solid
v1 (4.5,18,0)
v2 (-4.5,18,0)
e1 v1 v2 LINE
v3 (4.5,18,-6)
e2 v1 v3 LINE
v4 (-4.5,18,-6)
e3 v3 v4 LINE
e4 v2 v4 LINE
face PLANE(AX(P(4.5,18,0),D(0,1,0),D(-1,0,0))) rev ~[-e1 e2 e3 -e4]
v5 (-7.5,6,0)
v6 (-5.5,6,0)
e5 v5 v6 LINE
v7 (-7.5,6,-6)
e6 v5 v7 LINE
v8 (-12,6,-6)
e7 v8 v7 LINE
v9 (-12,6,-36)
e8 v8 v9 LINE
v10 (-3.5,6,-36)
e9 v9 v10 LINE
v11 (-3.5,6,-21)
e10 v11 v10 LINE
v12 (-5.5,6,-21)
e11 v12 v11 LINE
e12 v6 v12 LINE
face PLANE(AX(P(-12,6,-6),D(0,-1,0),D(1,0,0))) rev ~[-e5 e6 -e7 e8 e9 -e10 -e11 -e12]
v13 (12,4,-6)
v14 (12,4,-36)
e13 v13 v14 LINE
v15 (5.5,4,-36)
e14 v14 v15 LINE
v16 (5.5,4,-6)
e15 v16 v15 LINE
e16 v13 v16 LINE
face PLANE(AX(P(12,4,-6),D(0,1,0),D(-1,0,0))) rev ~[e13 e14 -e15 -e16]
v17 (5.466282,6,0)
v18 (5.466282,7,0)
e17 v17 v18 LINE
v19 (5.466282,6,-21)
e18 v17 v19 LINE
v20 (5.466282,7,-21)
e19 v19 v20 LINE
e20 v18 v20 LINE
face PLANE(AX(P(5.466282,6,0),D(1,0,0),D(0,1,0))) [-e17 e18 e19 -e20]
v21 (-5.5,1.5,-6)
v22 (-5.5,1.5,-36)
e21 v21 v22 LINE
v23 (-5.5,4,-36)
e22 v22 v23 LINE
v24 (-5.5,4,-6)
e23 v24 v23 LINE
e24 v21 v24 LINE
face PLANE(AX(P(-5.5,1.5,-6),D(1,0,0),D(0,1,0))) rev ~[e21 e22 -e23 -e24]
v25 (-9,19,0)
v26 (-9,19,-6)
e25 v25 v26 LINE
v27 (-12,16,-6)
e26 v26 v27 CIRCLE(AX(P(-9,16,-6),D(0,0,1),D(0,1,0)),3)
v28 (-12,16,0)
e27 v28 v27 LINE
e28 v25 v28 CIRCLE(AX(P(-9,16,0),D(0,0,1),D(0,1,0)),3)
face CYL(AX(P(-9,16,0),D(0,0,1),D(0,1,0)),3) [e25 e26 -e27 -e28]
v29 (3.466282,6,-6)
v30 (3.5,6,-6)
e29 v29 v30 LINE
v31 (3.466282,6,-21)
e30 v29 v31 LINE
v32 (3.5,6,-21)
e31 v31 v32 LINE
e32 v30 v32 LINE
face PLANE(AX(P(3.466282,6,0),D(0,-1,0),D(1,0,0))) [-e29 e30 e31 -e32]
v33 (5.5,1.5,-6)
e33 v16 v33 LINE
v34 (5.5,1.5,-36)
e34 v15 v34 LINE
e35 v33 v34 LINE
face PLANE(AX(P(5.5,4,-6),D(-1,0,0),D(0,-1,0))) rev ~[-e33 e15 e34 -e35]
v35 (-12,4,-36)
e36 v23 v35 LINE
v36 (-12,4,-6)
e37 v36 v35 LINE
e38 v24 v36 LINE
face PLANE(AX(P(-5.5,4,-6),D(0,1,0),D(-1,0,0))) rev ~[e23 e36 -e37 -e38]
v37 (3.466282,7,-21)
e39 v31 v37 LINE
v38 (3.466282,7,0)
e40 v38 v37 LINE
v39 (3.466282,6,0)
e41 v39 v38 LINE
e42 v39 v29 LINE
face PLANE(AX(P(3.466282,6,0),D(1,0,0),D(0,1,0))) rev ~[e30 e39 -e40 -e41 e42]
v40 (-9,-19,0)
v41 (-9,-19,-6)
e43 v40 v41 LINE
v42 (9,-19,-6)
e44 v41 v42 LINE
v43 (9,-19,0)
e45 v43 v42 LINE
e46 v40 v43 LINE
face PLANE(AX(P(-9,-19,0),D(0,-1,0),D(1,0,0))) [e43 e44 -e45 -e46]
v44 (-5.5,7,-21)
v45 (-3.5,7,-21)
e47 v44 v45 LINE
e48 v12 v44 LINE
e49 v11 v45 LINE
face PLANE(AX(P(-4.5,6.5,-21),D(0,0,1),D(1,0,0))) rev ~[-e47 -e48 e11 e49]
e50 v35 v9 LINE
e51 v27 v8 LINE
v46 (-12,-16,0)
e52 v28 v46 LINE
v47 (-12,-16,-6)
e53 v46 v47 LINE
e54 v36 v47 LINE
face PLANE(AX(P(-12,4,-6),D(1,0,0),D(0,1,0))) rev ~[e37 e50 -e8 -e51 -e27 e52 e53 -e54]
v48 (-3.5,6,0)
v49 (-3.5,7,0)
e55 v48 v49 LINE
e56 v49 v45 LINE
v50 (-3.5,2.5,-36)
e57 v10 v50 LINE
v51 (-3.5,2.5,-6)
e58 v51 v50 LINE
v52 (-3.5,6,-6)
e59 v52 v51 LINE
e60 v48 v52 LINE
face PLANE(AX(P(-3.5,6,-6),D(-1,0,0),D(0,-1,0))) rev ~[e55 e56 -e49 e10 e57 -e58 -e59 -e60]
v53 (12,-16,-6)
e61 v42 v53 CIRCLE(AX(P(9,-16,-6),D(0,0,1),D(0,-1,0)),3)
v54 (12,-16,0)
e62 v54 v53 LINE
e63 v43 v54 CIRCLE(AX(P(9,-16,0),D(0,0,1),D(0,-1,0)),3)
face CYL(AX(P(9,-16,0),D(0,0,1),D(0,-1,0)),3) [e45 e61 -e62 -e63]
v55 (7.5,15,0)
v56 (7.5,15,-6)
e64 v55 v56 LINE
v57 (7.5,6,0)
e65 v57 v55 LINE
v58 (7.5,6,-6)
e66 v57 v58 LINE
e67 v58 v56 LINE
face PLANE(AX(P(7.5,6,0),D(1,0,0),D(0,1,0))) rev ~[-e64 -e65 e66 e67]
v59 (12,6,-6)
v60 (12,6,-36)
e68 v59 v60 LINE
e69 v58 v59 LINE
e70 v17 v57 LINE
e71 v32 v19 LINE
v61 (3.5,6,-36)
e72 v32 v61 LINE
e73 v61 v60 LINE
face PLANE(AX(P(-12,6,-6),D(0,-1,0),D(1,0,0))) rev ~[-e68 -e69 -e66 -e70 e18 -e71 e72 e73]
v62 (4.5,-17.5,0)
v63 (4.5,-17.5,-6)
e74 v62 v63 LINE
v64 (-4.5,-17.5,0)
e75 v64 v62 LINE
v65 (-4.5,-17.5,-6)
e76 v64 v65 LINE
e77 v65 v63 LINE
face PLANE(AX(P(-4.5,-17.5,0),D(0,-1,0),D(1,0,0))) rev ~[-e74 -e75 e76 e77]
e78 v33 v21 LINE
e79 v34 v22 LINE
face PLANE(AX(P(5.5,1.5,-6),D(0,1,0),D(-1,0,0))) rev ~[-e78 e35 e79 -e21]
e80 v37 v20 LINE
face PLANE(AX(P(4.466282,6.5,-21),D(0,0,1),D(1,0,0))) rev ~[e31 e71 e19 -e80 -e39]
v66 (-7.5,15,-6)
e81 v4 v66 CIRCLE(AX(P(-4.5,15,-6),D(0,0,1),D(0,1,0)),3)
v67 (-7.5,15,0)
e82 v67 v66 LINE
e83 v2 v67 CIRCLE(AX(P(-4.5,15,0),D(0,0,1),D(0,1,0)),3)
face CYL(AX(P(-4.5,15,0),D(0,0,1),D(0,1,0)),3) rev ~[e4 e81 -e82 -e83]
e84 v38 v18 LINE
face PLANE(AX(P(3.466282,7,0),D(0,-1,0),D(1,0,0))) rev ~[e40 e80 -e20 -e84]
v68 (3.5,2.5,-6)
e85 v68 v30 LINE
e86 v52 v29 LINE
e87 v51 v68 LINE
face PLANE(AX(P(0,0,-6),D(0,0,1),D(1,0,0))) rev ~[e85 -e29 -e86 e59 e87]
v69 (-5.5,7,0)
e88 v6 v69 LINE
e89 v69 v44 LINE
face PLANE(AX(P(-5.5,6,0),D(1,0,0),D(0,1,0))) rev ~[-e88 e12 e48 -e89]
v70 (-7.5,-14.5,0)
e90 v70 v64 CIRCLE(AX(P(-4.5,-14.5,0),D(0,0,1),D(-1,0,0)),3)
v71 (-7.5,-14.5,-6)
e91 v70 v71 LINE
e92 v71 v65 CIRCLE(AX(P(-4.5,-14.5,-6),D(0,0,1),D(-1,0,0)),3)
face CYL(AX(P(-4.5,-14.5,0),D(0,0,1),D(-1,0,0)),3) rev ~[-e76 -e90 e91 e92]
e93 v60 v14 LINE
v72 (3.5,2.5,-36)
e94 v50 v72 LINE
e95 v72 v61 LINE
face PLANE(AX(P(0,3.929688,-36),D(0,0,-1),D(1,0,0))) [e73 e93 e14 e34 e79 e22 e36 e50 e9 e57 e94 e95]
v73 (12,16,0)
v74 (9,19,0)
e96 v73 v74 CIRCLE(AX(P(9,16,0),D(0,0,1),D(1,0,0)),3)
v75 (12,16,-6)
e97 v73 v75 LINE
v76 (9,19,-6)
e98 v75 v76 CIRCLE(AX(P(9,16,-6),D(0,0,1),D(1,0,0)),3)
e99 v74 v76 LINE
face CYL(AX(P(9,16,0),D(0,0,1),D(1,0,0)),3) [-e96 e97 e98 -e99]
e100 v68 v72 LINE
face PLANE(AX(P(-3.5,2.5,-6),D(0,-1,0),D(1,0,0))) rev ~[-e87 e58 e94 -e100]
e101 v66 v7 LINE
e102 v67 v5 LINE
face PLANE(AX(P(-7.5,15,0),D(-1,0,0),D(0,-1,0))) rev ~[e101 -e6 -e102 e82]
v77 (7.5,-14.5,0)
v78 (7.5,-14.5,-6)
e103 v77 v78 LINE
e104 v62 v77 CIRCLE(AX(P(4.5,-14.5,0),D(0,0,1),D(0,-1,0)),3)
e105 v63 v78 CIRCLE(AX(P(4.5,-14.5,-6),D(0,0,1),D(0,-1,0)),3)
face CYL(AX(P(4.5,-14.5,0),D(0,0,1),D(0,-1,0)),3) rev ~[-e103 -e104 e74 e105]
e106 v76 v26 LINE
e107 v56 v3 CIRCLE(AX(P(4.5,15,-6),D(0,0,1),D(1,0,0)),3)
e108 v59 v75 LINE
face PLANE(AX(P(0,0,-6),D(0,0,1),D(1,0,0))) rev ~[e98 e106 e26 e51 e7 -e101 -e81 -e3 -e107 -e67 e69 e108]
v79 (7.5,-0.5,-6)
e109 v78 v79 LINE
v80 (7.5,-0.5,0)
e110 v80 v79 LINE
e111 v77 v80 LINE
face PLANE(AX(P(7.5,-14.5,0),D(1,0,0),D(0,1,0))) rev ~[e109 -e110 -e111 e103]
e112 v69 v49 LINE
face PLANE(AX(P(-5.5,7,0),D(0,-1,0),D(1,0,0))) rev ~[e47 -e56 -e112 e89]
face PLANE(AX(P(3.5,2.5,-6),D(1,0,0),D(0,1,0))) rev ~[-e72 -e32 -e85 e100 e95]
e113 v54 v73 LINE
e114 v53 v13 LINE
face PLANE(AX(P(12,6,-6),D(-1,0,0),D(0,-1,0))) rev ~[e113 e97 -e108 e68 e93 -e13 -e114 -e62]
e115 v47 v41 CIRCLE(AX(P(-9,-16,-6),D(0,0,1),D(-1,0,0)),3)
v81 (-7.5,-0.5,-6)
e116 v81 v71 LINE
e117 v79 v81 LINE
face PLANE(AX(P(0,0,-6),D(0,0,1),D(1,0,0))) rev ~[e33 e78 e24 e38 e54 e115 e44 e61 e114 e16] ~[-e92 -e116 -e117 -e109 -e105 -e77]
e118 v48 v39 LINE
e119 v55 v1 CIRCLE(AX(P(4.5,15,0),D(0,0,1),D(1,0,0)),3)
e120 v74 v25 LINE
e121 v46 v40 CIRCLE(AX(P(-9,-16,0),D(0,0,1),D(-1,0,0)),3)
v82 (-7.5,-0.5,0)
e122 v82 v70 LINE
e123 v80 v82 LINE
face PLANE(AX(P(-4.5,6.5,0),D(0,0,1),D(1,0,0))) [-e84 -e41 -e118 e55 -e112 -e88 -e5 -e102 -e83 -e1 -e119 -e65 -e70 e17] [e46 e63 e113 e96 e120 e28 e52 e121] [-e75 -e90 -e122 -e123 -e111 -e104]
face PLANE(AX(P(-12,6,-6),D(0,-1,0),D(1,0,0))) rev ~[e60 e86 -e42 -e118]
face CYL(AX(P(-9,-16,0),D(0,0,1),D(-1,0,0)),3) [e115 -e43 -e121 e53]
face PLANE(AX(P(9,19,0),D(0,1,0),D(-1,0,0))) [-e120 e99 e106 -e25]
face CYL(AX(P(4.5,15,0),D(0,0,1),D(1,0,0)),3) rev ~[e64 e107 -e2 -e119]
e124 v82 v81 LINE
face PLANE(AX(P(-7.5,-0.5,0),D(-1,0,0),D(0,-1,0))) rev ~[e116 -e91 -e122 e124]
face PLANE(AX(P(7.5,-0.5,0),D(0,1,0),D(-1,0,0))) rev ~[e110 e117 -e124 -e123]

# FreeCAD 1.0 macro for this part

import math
import FreeCAD as App
import Part
import Sketcher
from FreeCAD import Vector

doc = App.newDocument("Part")
params = doc.addObject("Spreadsheet::Sheet", "Params")
for row, (alias, value) in enumerate([
    ("sketch1_radius", "3 mm"),
    ("sketch1_width", "18 mm"),
    ("sketch1_height", "32 mm"),
    ("pad1_length", "6 mm"),
    ("sketch2_radius", "3 mm"),
    ("sketch2_width", "9 mm"),
    ("sketch2_height", "14 mm"),
    ("sketch3_width", "7 mm"),
    ("sketch3_width2", "11 mm"),
    ("sketch3_height", "2 mm"),
    ("sketch3_width3", "8.5 mm"),
    ("sketch3_height2", "3.5 mm"),
    ("pad2_length", "30 mm"),
    ("sketch4_width", "2 mm"),
    ("sketch4_height", "1 mm"),
    ("pad3_length", "21 mm"),
], start=1):
    params.set(f"A{row}", alias)
    params.set(f"B{row}", "=" + value)
    params.setAlias(f"B{row}", alias)

body = doc.addObject("PartDesign::Body", "Body")

sketch1 = body.newObject("Sketcher::SketchObject", "Sketch")
sketch1.AttachmentSupport = (doc.getObject("XY_Plane"), [""])
sketch1.MapMode = "FlatFace"
sketch1.addGeometry([
    Part.ArcOfCircle(Part.Circle(Vector(9, 16, 0), Vector(0, 0, 1), 3), math.radians(0), math.radians(90)),
    Part.LineSegment(Vector(9, 19, 0), Vector(-9, 19, 0)),
    Part.ArcOfCircle(Part.Circle(Vector(-9, 16, 0), Vector(0, 0, 1), 3), math.radians(90), math.radians(180)),
    Part.LineSegment(Vector(-12, 16, 0), Vector(-12, -16, 0)),
    Part.ArcOfCircle(Part.Circle(Vector(-9, -16, 0), Vector(0, 0, 1), 3), math.radians(180), math.radians(270)),
    Part.LineSegment(Vector(-9, -19, 0), Vector(9, -19, 0)),
    Part.ArcOfCircle(Part.Circle(Vector(9, -16, 0), Vector(0, 0, 1), 3), math.radians(-90), math.radians(0)),
    Part.LineSegment(Vector(12, -16, 0), Vector(12, 16, 0)),
], False)
sketch1.addConstraint([
    Sketcher.Constraint("Tangent", 0, 2, 1, 1),
    Sketcher.Constraint("Tangent", 1, 2, 2, 1),
    Sketcher.Constraint("Tangent", 2, 2, 3, 1),
    Sketcher.Constraint("Tangent", 3, 2, 4, 1),
    Sketcher.Constraint("Tangent", 4, 2, 5, 1),
    Sketcher.Constraint("Tangent", 5, 2, 6, 1),
    Sketcher.Constraint("Tangent", 6, 2, 7, 1),
    Sketcher.Constraint("Tangent", 7, 2, 0, 1),
    Sketcher.Constraint("Horizontal", 1),
    Sketcher.Constraint("Vertical", 3),
    Sketcher.Constraint("Horizontal", 5),
    Sketcher.Constraint("Vertical", 7),
    Sketcher.Constraint("Equal", 0, 2),
    Sketcher.Constraint("Equal", 2, 4),
    Sketcher.Constraint("Equal", 4, 6),
    Sketcher.Constraint("Symmetric", 0, 3, 4, 3, -1, 1),
    Sketcher.Constraint("Radius", 0, 3.0),
    Sketcher.Constraint("DistanceX", 1, 2, 1, 1, 18.0),
    Sketcher.Constraint("DistanceY", 3, 2, 3, 1, 32.0),
])
sketch1.setExpression("Constraints[16]", "Params.sketch1_radius")
sketch1.setExpression("Constraints[17]", "Params.sketch1_width")
sketch1.setExpression("Constraints[18]", "Params.sketch1_height")
pad1 = body.newObject("PartDesign::Pad", "Pad")
pad1.Profile = sketch1
pad1.setExpression("Length", "Params.pad1_length")
pad1.Reversed = True

sketch2 = body.newObject("Sketcher::SketchObject", "Sketch001")
sketch2.AttachmentSupport = (doc.getObject("XY_Plane"), [""])
sketch2.MapMode = "FlatFace"
sketch2.addGeometry([
    Part.ArcOfCircle(Part.Circle(Vector(4.5, 15, 0), Vector(0, 0, 1), 3), math.radians(0), math.radians(90)),
    Part.LineSegment(Vector(4.5, 18, 0), Vector(-4.5, 18, 0)),
    Part.ArcOfCircle(Part.Circle(Vector(-4.5, 15, 0), Vector(0, 0, 1), 3), math.radians(90), math.radians(180)),
    Part.LineSegment(Vector(-7.5, 15, 0), Vector(-7.5, 6, 0)),
    Part.LineSegment(Vector(-7.5, 6, 0), Vector(7.5, 6, 0)),
    Part.LineSegment(Vector(7.5, 6, 0), Vector(7.5, 15, 0)),
    Part.LineSegment(Vector(7.5, -14.5, 0), Vector(7.5, -0.5, 0)),
    Part.LineSegment(Vector(7.5, -0.5, 0), Vector(-7.5, -0.5, 0)),
    Part.LineSegment(Vector(-7.5, -0.5, 0), Vector(-7.5, -14.5, 0)),
    Part.ArcOfCircle(Part.Circle(Vector(-4.5, -14.5, 0), Vector(0, 0, 1), 3), math.radians(180), math.radians(270)),
    Part.LineSegment(Vector(-4.5, -17.5, 0), Vector(4.5, -17.5, 0)),
    Part.ArcOfCircle(Part.Circle(Vector(4.5, -14.5, 0), Vector(0, 0, 1), 3), math.radians(-90), math.radians(0)),
], False)
sketch2.addConstraint([
    Sketcher.Constraint("Tangent", 0, 2, 1, 1),
    Sketcher.Constraint("Tangent", 1, 2, 2, 1),
    Sketcher.Constraint("Tangent", 2, 2, 3, 1),
    Sketcher.Constraint("Coincident", 3, 2, 4, 1),
    Sketcher.Constraint("Coincident", 4, 2, 5, 1),
    Sketcher.Constraint("Tangent", 5, 2, 0, 1),
    Sketcher.Constraint("Coincident", 6, 2, 7, 1),
    Sketcher.Constraint("Coincident", 7, 2, 8, 1),
    Sketcher.Constraint("Tangent", 8, 2, 9, 1),
    Sketcher.Constraint("Tangent", 9, 2, 10, 1),
    Sketcher.Constraint("Tangent", 10, 2, 11, 1),
    Sketcher.Constraint("Tangent", 11, 2, 6, 1),
    Sketcher.Constraint("Horizontal", 1),
    Sketcher.Constraint("Vertical", 3),
    Sketcher.Constraint("Horizontal", 4),
    Sketcher.Constraint("Vertical", 5),
    Sketcher.Constraint("Vertical", 6),
    Sketcher.Constraint("Horizontal", 7),
    Sketcher.Constraint("Vertical", 8),
    Sketcher.Constraint("Horizontal", 10),
    Sketcher.Constraint("Equal", 0, 2),
    Sketcher.Constraint("Equal", 2, 9),
    Sketcher.Constraint("Equal", 9, 11),
    Sketcher.Constraint("Vertical", 2, 3, 9, 3),
    Sketcher.Constraint("Vertical", 0, 3, 11, 3),
    Sketcher.Constraint("Equal", 10, 3),
    Sketcher.Constraint("Radius", 0, 3.0),
    Sketcher.Constraint("DistanceX", 1, 2, 1, 1, 9.0),
    Sketcher.Constraint("DistanceY", 6, 1, 6, 2, 14.0),
    Sketcher.Constraint("DistanceY", -1, 1, 0, 3, 15.0),
    Sketcher.Constraint("DistanceX", -1, 1, 0, 3, 4.5),
    Sketcher.Constraint("DistanceY", 9, 3, -1, 1, 14.5),
])
sketch2.setExpression("Constraints[26]", "Params.sketch2_radius")
sketch2.setExpression("Constraints[27]", "Params.sketch2_width")
sketch2.setExpression("Constraints[28]", "Params.sketch2_height")
pocket1 = body.newObject("PartDesign::Pocket", "Pocket")
pocket1.Profile = sketch2
pocket1.Type = "ThroughAll"

sketch3 = body.newObject("Sketcher::SketchObject", "Sketch002")
sketch3.AttachmentSupport = (doc.getObject("XY_Plane"), [""])
sketch3.MapMode = "FlatFace"
sketch3.AttachmentOffset = App.Placement(Vector(0, 0, -6), App.Rotation())
sketch3.addGeometry([
    Part.LineSegment(Vector(-3.5, 2.5, 0), Vector(3.5, 2.5, 0)),
    Part.LineSegment(Vector(3.5, 2.5, 0), Vector(3.5, 6, 0)),
    Part.LineSegment(Vector(3.5, 6, 0), Vector(12, 6, 0)),
    Part.LineSegment(Vector(12, 6, 0), Vector(12, 4, 0)),
    Part.LineSegment(Vector(12, 4, 0), Vector(5.5, 4, 0)),
    Part.LineSegment(Vector(5.5, 4, 0), Vector(5.5, 1.5, 0)),
    Part.LineSegment(Vector(5.5, 1.5, 0), Vector(-5.5, 1.5, 0)),
    Part.LineSegment(Vector(-5.5, 1.5, 0), Vector(-5.5, 4, 0)),
    Part.LineSegment(Vector(-5.5, 4, 0), Vector(-12, 4, 0)),
    Part.LineSegment(Vector(-12, 4, 0), Vector(-12, 6, 0)),
    Part.LineSegment(Vector(-12, 6, 0), Vector(-3.5, 6, 0)),
    Part.LineSegment(Vector(-3.5, 6, 0), Vector(-3.5, 2.5, 0)),
], False)
sketch3.addConstraint([
    Sketcher.Constraint("Coincident", 0, 2, 1, 1),
    Sketcher.Constraint("Coincident", 1, 2, 2, 1),
    Sketcher.Constraint("Coincident", 2, 2, 3, 1),
    Sketcher.Constraint("Coincident", 3, 2, 4, 1),
    Sketcher.Constraint("Coincident", 4, 2, 5, 1),
    Sketcher.Constraint("Coincident", 5, 2, 6, 1),
    Sketcher.Constraint("Coincident", 6, 2, 7, 1),
    Sketcher.Constraint("Coincident", 7, 2, 8, 1),
    Sketcher.Constraint("Coincident", 8, 2, 9, 1),
    Sketcher.Constraint("Coincident", 9, 2, 10, 1),
    Sketcher.Constraint("Coincident", 10, 2, 11, 1),
    Sketcher.Constraint("Coincident", 11, 2, 0, 1),
    Sketcher.Constraint("Horizontal", 0),
    Sketcher.Constraint("Vertical", 1),
    Sketcher.Constraint("Horizontal", 2),
    Sketcher.Constraint("Vertical", 3),
    Sketcher.Constraint("Horizontal", 4),
    Sketcher.Constraint("Vertical", 5),
    Sketcher.Constraint("Horizontal", 6),
    Sketcher.Constraint("Vertical", 7),
    Sketcher.Constraint("Horizontal", 8),
    Sketcher.Constraint("Vertical", 9),
    Sketcher.Constraint("Horizontal", 10),
    Sketcher.Constraint("Vertical", 11),
    Sketcher.Constraint("Symmetric", 4, 2, 7, 2, -2),
    Sketcher.Constraint("Symmetric", 2, 2, 9, 2, -2),
    Sketcher.Constraint("Equal", 2, 10),
    Sketcher.Constraint("DistanceX", 0, 1, 0, 2, 7.0),
    Sketcher.Constraint("DistanceX", 6, 2, 6, 1, 11.0),
    Sketcher.Constraint("DistanceY", 3, 2, 3, 1, 2.0),
    Sketcher.Constraint("DistanceX", 2, 1, 2, 2, 8.5),
    Sketcher.Constraint("DistanceY", 1, 1, 1, 2, 3.5),
    Sketcher.Constraint("DistanceY", 5, 2, 5, 1, 2.5),
    Sketcher.Constraint("DistanceY", -1, 1, 1, 2, 6.0),
])
sketch3.setExpression("Constraints[27]", "Params.sketch3_width")
sketch3.setExpression("Constraints[28]", "Params.sketch3_width2")
sketch3.setExpression("Constraints[29]", "Params.sketch3_height")
sketch3.setExpression("Constraints[30]", "Params.sketch3_width3")
sketch3.setExpression("Constraints[31]", "Params.sketch3_height2")
pad2 = body.newObject("PartDesign::Pad", "Pad001")
pad2.Profile = sketch3
pad2.setExpression("Length", "Params.pad2_length")
pad2.Reversed = True

sketch4 = body.newObject("Sketcher::SketchObject", "Sketch003")
sketch4.AttachmentSupport = (doc.getObject("XY_Plane"), [""])
sketch4.MapMode = "FlatFace"
sketch4.addGeometry([
    Part.LineSegment(Vector(-5.5, 7, 0), Vector(-5.5, 6, 0)),
    Part.LineSegment(Vector(-5.5, 6, 0), Vector(-3.5, 6, 0)),
    Part.LineSegment(Vector(-3.5, 6, 0), Vector(-3.5, 7, 0)),
    Part.LineSegment(Vector(-3.5, 7, 0), Vector(-5.5, 7, 0)),
    Part.LineSegment(Vector(3.5, 7, 0), Vector(3.5, 6, 0)),
    Part.LineSegment(Vector(3.5, 6, 0), Vector(5.5, 6, 0)),
    Part.LineSegment(Vector(5.5, 6, 0), Vector(5.5, 7, 0)),
    Part.LineSegment(Vector(5.5, 7, 0), Vector(3.5, 7, 0)),
], False)
sketch4.addConstraint([
    Sketcher.Constraint("Coincident", 0, 2, 1, 1),
    Sketcher.Constraint("Coincident", 1, 2, 2, 1),
    Sketcher.Constraint("Coincident", 2, 2, 3, 1),
    Sketcher.Constraint("Coincident", 3, 2, 0, 1),
    Sketcher.Constraint("Coincident", 4, 2, 5, 1),
    Sketcher.Constraint("Coincident", 5, 2, 6, 1),
    Sketcher.Constraint("Coincident", 6, 2, 7, 1),
    Sketcher.Constraint("Coincident", 7, 2, 4, 1),
    Sketcher.Constraint("Vertical", 0),
    Sketcher.Constraint("Horizontal", 1),
    Sketcher.Constraint("Vertical", 2),
    Sketcher.Constraint("Horizontal", 3),
    Sketcher.Constraint("Vertical", 4),
    Sketcher.Constraint("Horizontal", 5),
    Sketcher.Constraint("Vertical", 6),
    Sketcher.Constraint("Horizontal", 7),
    Sketcher.Constraint("Horizontal", 1, 2, 4, 2),
    Sketcher.Constraint("Horizontal", 3, 2, 6, 2),
    Sketcher.Constraint("Equal", 3, 5),
    Sketcher.Constraint("DistanceX", 1, 1, 1, 2, 2.0),
    Sketcher.Constraint("DistanceY", 0, 2, 0, 1, 1.0),
    Sketcher.Constraint("DistanceY", -1, 1, 0, 2, 6.0),
    Sketcher.Constraint("DistanceX", 0, 2, -1, 1, 5.5),
    Sketcher.Constraint("DistanceX", -1, 1, 4, 2, 3.466282),
])
sketch4.setExpression("Constraints[19]", "Params.sketch4_width")
sketch4.setExpression("Constraints[20]", "Params.sketch4_height")
pad3 = body.newObject("PartDesign::Pad", "Pad002")
pad3.Profile = sketch4
pad3.setExpression("Length", "Params.pad3_length")
pad3.Reversed = True

doc.recompute()
